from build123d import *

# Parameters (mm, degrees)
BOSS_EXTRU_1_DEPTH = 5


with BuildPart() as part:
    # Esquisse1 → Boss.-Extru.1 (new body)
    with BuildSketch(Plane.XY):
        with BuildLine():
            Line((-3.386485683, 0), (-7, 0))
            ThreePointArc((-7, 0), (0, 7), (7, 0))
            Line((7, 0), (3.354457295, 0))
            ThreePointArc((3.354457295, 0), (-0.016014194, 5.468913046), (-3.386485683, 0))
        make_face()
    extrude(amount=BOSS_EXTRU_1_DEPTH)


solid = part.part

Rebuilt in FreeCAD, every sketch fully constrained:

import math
import FreeCAD as App
import Part
import Sketcher
from FreeCAD import Vector
Q = App.Units.Quantity

doc = App.newDocument("Part")
body = doc.addObject("PartDesign::Body", "Body")

sketch1 = doc.addObject("Sketcher::SketchObject", "Sketch")
body.addObject(sketch1)
sketch1.AttachmentSupport = (doc.XY_Plane, [""])
sketch1.MapMode = "FlatFace"
sketch1.addGeometry([
    Part.LineSegment(Vector(-7, 0, 0), Vector(-3.4, 0, 0)),
    Part.ArcOfCircle(Part.Circle(Vector(0, 1.7, 0), Vector(0, 0, 1), 3.8), math.radians(-27), math.radians(207)),
    Part.LineSegment(Vector(3.4, 0, 0), Vector(7, 0, 0)),
    Part.ArcOfCircle(Part.Circle(Vector(0, 0, 0), Vector(0, 0, 1), 7), math.radians(0), math.radians(180)),
], False)
sketch1.addConstraint([
    Sketcher.Constraint("Coincident", 0, 2, 1, 2),
    Sketcher.Constraint("Coincident", 1, 1, 2, 1),
    Sketcher.Constraint("Coincident", 2, 2, 3, 1),
    Sketcher.Constraint("Coincident", 3, 2, 0, 1),
    Sketcher.Constraint("Horizontal", 0),
    Sketcher.Constraint("Horizontal", 2),
    Sketcher.Constraint("Coincident", 3, 3, -1, 1),
    Sketcher.Constraint("PointOnObject", 0, 2, -1),
    Sketcher.Constraint("PointOnObject", 1, 1, -1),
    Sketcher.Constraint("Radius", 3, Q("7 mm")),
    Sketcher.Constraint("Radius", 1, Q("3.773061 mm")),
    Sketcher.Constraint("DistanceX", 0, 1, 0, 2, Q("3.613514 mm")),
    Sketcher.Constraint("DistanceX", 2, 1, 2, 2, Q("3.645543 mm")),
])
pad1 = doc.addObject("PartDesign::Pad", "Pad")
body.addObject(pad1)
pad1.Profile = sketch1
pad1.Length = 5

doc.recompute()
